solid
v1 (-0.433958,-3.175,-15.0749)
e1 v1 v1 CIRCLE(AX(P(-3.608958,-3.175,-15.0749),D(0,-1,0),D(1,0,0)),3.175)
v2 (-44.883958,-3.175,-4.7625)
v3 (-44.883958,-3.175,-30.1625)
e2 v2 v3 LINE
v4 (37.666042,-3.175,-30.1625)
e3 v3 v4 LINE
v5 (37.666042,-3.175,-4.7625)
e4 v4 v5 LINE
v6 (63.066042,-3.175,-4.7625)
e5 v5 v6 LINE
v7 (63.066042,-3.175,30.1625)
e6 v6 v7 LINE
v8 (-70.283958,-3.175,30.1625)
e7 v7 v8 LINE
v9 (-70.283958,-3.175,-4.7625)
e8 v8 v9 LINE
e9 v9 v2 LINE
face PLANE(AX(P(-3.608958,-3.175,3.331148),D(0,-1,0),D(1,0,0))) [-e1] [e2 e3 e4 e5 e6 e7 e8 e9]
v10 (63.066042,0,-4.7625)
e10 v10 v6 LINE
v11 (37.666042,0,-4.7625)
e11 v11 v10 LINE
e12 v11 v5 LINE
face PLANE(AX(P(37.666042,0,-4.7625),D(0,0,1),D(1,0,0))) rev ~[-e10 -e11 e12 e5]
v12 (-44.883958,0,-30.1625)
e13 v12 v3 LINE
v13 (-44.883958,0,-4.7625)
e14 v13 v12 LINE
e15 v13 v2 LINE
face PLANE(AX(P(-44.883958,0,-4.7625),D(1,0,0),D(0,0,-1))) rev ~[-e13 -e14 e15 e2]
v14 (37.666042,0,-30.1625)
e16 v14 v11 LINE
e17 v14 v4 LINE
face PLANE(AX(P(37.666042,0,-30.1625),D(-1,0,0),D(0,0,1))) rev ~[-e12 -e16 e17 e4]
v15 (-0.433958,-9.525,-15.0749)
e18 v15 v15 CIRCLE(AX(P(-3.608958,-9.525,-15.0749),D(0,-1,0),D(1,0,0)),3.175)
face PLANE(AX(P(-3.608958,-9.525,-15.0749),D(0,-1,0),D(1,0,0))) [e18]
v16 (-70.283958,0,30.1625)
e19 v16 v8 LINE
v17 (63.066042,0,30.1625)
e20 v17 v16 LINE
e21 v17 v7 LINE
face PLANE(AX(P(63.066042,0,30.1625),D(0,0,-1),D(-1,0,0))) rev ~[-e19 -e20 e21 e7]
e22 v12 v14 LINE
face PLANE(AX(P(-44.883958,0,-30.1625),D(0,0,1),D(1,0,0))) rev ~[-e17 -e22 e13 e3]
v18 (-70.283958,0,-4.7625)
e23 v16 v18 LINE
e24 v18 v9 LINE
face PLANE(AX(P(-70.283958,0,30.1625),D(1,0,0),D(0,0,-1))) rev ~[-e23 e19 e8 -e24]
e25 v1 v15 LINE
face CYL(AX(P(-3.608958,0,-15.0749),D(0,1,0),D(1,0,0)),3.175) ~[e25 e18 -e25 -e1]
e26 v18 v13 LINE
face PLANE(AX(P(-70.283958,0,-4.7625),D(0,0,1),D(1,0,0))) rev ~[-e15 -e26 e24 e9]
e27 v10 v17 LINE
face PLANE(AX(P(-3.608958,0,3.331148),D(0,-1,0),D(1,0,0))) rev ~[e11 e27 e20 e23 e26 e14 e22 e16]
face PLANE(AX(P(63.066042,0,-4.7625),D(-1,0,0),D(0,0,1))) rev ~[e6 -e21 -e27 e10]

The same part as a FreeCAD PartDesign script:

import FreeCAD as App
import Part
import Sketcher
Q = App.Units.Quantity

doc = App.newDocument("Part")
params = doc.addObject("Spreadsheet::Sheet", "Params")
for row, (alias, value) in enumerate([
    ("sketch1_diameter", "0.25 in"),
    ("sketch1_width", "1 in"),
    ("sketch1_width2", "5.25 in"),
    ("sketch1_height", "1.375 in"),
    ("pad1_length", "0.125 in"),
    ("sketch2_diameter", "0.25 in"),
    ("pad2_length", "0.375 in"),
], start=1):
    params.set(f"A{row}", alias)
    params.set(f"B{row}", "=" + value)
    params.setAlias(f"B{row}", alias)

body = doc.addObject("PartDesign::Body", "Body")

sketch1 = body.newObject("Sketcher::SketchObject", "Sketch")
sketch1.AttachmentSupport = (doc.getObject("XZ_Plane"), [""])
sketch1.MapMode = "FlatFace"
sketch1.addGeometry([
    Part.LineSegment(App.Vector(63.1, -4.8, 0), App.Vector(63.1, 30.2, 0)),
    Part.LineSegment(App.Vector(63.1, 30.2, 0), App.Vector(-70.3, 30.2, 0)),
    Part.LineSegment(App.Vector(-70.3, 30.2, 0), App.Vector(-70.3, -4.8, 0)),
    Part.LineSegment(App.Vector(-70.3, -4.8, 0), App.Vector(-44.9, -4.8, 0)),
    Part.LineSegment(App.Vector(-44.9, -4.8, 0), App.Vector(-44.9, -30.2, 0)),
    Part.LineSegment(App.Vector(-44.9, -30.2, 0), App.Vector(37.7, -30.2, 0)),
    Part.LineSegment(App.Vector(37.7, -30.2, 0), App.Vector(37.7, -4.8, 0)),
    Part.LineSegment(App.Vector(37.7, -4.8, 0), App.Vector(63.1, -4.8, 0)),
    Part.Circle(App.Vector(-3.6, -15.1, 0), App.Vector(0, 0, 1), 3.2),
], False)
sketch1.addConstraint([
    Sketcher.Constraint("Coincident", 0, 2, 1, 1),
    Sketcher.Constraint("Coincident", 1, 2, 2, 1),
    Sketcher.Constraint("Coincident", 2, 2, 3, 1),
    Sketcher.Constraint("Coincident", 3, 2, 4, 1),
    Sketcher.Constraint("Coincident", 4, 2, 5, 1),
    Sketcher.Constraint("Coincident", 5, 2, 6, 1),
    Sketcher.Constraint("Coincident", 6, 2, 7, 1),
    Sketcher.Constraint("Coincident", 7, 2, 0, 1),
    Sketcher.Constraint("Vertical", 0),
    Sketcher.Constraint("Horizontal", 1),
    Sketcher.Constraint("Vertical", 2),
    Sketcher.Constraint("Horizontal", 3),
    Sketcher.Constraint("Vertical", 4),
    Sketcher.Constraint("Horizontal", 5),
    Sketcher.Constraint("Vertical", 6),
    Sketcher.Constraint("Horizontal", 7),
    Sketcher.Constraint("Horizontal", 3, 2, 6, 2),
    Sketcher.Constraint("Equal", 3, 7),
    Sketcher.Constraint("Equal", 7, 4),
    Sketcher.Constraint("Diameter", 8, Q("0.25 in")),
    Sketcher.Constraint("DistanceX", 3, 1, 3, 2, Q("1 in")),
    Sketcher.Constraint("DistanceX", 1, 2, 1, 1, Q("5.25 in")),
    Sketcher.Constraint("DistanceY", 0, 1, 0, 2, Q("1.375 in")),
    Sketcher.Constraint("DistanceY", -1, 1, 0, 2, Q("1.1875 in")),
    Sketcher.Constraint("DistanceX", 8, 3, 0, 2, Q("2.625 in")),
    Sketcher.Constraint("DistanceY", 8, 3, 0, 2, Q("1.781 in")),
    Sketcher.Constraint("DistanceX", 1, 2, -1, 1, Q("70.283958 mm")),
])
sketch1.setExpression("Constraints[19]", "Params.sketch1_diameter")
sketch1.setExpression("Constraints[20]", "Params.sketch1_width")
sketch1.setExpression("Constraints[21]", "Params.sketch1_width2")
sketch1.setExpression("Constraints[22]", "Params.sketch1_height")
pad1 = body.newObject("PartDesign::Pad", "Pad")
pad1.Profile = sketch1
pad1.setExpression("Length", "Params.pad1_length")

sketch2 = body.newObject("Sketcher::SketchObject", "Sketch001")
sketch2.AttachmentSupport = (doc.getObject("XZ_Plane"), [""])
sketch2.MapMode = "FlatFace"
sketch2.addGeometry(Part.Circle(App.Vector(-3.6, -15.1, 0), App.Vector(0, 0, 1), 3.2), False)
sketch2.addConstraint([
    Sketcher.Constraint("Diameter", 0, Q("0.25 in")),
    Sketcher.Constraint("DistanceY", 0, 3, -1, 1, Q("0.5935 in")),
    Sketcher.Constraint("DistanceX", 0, 3, -1, 1, Q("3.608958 mm")),
])
sketch2.setExpression("Constraints[0]", "Params.sketch2_diameter")
pad2 = body.newObject("PartDesign::Pad", "Pad001")
pad2.Profile = sketch2
pad2.setExpression("Length", "Params.pad2_length")

doc.recompute()
